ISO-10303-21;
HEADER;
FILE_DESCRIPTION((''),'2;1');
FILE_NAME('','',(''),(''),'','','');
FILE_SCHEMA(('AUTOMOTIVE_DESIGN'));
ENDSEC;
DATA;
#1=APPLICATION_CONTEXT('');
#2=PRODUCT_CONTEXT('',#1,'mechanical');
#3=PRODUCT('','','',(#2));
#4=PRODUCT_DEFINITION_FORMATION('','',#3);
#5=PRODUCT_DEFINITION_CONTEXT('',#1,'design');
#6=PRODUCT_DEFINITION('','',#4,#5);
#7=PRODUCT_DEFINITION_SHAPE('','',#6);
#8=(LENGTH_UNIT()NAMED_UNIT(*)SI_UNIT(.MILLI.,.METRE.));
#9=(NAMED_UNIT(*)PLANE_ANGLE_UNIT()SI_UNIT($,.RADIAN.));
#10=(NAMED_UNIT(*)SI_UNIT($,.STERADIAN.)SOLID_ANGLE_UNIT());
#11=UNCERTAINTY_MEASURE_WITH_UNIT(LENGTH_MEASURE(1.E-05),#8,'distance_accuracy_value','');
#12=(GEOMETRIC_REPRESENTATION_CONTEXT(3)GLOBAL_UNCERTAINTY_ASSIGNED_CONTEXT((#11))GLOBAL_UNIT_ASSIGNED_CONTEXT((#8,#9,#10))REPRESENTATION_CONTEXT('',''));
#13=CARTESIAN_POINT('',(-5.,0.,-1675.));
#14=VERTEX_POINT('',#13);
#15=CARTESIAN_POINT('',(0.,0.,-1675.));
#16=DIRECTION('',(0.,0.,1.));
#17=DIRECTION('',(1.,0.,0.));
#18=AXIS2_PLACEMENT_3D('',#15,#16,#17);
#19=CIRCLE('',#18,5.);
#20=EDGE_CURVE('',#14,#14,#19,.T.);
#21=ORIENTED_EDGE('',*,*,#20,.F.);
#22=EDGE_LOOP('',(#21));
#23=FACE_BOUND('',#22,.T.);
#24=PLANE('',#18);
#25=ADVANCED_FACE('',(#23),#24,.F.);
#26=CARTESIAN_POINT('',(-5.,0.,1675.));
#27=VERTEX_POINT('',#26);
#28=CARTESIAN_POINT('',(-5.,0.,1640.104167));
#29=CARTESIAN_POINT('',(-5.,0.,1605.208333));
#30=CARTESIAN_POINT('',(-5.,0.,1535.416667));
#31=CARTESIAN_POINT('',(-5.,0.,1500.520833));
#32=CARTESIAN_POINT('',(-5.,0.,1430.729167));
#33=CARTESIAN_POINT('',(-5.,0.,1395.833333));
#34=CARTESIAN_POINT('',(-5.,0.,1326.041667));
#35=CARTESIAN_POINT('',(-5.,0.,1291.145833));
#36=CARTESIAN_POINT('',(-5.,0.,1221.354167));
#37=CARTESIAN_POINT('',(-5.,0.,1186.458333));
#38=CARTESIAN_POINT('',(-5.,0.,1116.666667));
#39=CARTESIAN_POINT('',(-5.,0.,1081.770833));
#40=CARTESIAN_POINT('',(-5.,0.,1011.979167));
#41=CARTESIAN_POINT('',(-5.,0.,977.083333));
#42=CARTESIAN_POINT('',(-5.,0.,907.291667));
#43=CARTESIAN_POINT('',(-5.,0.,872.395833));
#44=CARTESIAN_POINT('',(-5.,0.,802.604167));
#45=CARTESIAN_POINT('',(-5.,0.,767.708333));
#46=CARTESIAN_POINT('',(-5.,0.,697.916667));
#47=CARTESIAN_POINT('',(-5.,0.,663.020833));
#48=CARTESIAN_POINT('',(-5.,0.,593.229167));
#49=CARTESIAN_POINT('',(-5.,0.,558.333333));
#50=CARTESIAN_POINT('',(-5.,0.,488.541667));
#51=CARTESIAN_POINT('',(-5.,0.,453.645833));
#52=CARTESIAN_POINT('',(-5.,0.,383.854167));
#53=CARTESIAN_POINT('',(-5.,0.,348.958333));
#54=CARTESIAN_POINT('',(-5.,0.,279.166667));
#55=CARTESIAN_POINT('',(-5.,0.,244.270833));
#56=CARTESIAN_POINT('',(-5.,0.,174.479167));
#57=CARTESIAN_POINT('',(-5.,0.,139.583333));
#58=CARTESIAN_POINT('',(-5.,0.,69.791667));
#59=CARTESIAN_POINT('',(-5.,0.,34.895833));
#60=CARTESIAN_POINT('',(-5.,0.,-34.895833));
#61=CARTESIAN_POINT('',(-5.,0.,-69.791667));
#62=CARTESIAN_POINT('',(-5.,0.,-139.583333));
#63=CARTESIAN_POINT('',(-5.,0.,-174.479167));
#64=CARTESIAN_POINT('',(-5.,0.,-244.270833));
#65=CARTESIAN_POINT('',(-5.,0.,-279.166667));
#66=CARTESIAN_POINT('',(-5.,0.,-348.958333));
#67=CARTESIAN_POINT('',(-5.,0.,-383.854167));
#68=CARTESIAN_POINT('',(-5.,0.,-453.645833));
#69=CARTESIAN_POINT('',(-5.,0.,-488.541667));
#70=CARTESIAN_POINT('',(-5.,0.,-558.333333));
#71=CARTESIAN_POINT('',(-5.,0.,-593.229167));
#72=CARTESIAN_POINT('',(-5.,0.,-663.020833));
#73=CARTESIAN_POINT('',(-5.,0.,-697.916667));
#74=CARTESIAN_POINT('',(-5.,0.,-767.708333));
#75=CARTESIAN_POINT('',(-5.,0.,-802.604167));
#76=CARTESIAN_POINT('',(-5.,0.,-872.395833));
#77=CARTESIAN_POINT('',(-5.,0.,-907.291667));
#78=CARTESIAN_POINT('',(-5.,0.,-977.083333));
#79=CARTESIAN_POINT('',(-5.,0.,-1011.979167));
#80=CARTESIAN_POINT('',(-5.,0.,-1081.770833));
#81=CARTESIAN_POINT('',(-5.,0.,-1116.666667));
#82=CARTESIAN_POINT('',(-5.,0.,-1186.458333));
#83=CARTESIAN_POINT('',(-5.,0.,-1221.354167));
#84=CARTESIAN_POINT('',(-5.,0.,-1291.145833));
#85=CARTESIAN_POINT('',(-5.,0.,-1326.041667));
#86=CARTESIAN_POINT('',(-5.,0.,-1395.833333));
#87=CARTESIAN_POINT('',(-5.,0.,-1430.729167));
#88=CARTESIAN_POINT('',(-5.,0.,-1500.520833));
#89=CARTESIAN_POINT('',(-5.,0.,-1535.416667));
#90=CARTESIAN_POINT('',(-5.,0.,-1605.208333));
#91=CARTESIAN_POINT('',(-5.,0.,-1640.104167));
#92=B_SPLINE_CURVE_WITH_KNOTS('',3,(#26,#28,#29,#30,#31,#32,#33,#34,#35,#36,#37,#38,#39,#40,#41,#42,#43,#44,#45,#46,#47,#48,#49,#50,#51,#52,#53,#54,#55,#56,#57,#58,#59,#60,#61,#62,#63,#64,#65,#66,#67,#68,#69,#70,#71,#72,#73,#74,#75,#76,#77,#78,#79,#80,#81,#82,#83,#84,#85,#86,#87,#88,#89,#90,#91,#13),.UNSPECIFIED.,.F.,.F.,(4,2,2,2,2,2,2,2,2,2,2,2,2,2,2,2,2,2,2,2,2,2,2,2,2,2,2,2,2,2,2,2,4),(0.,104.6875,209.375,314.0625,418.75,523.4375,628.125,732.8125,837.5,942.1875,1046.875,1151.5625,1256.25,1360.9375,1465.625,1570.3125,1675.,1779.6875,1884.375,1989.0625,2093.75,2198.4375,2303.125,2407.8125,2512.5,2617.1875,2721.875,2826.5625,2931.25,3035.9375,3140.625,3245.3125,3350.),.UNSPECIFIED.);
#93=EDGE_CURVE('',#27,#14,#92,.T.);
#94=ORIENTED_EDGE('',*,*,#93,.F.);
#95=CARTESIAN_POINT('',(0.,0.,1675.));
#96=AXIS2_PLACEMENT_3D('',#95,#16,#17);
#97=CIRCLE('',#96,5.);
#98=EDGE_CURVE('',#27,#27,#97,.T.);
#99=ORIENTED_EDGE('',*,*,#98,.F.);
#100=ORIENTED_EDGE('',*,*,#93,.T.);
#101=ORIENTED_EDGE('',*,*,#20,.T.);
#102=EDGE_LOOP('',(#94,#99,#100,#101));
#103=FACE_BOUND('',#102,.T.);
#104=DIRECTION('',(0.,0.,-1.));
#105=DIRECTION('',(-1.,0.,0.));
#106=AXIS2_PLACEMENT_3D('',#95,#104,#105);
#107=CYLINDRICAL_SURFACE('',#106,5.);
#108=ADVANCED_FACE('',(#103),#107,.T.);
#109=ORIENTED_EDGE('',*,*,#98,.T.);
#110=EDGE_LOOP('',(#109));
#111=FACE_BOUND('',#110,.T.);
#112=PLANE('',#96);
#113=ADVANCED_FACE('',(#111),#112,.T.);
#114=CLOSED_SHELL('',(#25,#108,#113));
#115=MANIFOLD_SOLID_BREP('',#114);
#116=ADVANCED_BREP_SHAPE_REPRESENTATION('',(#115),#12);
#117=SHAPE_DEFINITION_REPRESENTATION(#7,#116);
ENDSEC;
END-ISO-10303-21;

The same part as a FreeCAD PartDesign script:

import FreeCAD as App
import Part
import Sketcher

V = App.Vector

doc = App.newDocument("Part")
body = doc.addObject("PartDesign::Body", "Body")

# Sketch on XY plane
sketch1 = body.newObject("Sketcher::SketchObject", "Sketch")
sketch1.AttachmentSupport = (doc.getObject("XY_Plane"), [""])
sketch1.MapMode = "FlatFace"
sketch1.addGeometry(Part.Circle(V(0, 0, 0), V(0, 0, 1), 5), False)
sketch1.addConstraint(Sketcher.Constraint("Coincident", 0, 3, -1, 1))
sketch1.addConstraint(Sketcher.Constraint("Diameter", 0, 10.0))
pad1 = body.newObject("PartDesign::Pad", "Pad")
pad1.Profile = sketch1
pad1.Length = 3350
pad1.Midplane = True

doc.recompute()
